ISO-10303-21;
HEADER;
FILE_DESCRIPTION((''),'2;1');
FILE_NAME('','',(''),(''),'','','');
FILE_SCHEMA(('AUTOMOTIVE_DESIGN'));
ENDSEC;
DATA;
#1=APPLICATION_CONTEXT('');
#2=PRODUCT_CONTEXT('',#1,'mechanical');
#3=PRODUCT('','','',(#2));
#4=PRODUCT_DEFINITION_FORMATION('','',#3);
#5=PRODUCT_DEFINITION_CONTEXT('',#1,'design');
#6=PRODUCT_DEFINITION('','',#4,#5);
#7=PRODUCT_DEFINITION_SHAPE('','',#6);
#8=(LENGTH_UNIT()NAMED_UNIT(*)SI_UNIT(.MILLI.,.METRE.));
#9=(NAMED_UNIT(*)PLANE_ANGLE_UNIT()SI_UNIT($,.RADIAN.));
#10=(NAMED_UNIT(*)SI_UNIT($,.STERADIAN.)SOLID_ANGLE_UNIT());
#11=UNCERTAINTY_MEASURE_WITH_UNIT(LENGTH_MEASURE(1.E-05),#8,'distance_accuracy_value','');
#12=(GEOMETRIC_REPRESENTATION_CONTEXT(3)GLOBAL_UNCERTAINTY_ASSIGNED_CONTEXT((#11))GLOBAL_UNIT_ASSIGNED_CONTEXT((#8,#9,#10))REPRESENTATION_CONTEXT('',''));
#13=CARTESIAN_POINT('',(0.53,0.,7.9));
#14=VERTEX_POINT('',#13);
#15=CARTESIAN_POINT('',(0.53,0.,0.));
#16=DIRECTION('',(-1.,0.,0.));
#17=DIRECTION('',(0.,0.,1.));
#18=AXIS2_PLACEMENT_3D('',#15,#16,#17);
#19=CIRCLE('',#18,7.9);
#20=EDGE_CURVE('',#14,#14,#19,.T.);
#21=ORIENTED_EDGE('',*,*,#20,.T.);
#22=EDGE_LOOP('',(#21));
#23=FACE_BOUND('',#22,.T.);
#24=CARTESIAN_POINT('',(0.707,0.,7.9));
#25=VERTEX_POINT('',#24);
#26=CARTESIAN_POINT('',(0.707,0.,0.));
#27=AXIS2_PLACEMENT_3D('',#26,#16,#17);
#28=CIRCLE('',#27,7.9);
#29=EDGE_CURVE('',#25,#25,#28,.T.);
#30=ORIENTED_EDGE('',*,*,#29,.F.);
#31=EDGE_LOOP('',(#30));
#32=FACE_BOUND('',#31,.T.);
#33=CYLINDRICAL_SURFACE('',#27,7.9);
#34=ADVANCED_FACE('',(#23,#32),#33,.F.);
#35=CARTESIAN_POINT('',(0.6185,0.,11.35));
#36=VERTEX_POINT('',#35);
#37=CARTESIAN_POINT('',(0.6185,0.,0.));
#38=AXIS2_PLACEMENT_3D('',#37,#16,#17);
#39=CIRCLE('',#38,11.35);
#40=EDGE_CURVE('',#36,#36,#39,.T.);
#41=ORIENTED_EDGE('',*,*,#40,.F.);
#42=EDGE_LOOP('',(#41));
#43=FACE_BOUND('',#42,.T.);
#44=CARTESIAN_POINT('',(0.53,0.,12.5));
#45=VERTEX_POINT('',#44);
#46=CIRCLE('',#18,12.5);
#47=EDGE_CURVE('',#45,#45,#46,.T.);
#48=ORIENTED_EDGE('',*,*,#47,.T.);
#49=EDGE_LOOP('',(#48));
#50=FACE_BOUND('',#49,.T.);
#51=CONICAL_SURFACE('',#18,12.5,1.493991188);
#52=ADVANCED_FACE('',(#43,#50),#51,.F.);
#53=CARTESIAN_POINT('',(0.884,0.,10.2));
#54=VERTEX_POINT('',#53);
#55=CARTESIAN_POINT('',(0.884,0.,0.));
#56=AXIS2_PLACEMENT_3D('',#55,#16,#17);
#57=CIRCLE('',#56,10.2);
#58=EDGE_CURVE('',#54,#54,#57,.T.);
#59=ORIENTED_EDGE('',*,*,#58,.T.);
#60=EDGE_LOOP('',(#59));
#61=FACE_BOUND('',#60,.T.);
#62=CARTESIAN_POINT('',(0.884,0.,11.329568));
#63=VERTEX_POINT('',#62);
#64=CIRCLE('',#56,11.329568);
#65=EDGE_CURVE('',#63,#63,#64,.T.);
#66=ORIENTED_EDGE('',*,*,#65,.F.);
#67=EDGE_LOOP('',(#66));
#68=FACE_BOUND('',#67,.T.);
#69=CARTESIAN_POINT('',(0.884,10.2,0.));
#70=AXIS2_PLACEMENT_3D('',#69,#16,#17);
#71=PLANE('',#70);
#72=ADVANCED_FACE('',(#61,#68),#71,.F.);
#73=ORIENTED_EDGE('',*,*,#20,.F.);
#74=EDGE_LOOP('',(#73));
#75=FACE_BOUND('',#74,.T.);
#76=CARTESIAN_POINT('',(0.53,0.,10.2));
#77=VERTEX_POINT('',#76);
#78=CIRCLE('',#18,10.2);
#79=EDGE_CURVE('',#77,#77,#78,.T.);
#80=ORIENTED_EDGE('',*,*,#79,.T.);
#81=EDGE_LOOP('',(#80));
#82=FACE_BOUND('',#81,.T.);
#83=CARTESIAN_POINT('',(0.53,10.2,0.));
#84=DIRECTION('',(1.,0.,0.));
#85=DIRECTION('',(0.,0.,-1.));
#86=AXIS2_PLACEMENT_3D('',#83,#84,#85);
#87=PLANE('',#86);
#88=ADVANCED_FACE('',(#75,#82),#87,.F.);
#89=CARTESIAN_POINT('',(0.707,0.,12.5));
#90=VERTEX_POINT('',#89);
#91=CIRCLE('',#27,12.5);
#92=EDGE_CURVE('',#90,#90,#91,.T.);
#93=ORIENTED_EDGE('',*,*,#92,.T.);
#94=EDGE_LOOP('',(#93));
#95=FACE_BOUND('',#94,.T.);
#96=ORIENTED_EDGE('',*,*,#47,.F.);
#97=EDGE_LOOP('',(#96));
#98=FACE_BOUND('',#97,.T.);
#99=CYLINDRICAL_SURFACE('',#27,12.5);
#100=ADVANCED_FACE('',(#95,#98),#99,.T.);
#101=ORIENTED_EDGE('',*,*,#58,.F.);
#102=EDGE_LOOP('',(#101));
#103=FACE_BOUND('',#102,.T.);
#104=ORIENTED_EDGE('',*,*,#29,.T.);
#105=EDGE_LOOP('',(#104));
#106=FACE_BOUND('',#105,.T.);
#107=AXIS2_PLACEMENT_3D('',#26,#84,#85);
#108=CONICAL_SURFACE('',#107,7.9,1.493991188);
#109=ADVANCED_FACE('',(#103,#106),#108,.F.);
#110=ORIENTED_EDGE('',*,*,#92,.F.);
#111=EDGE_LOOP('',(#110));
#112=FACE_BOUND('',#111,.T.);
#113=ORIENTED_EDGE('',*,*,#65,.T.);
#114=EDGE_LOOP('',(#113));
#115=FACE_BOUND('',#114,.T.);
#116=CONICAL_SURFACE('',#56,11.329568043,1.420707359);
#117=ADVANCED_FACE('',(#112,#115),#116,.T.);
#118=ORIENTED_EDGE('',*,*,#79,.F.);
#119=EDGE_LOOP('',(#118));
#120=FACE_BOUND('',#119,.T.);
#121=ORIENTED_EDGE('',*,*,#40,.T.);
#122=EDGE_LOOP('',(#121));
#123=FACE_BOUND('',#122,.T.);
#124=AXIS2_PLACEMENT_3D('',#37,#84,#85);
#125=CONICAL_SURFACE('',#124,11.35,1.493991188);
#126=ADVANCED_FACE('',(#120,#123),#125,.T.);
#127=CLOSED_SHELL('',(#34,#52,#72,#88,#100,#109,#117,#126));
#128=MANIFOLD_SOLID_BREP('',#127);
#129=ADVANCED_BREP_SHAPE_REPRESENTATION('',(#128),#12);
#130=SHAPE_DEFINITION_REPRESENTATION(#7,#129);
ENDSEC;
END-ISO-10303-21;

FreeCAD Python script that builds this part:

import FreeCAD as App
import Part
import Sketcher

doc = App.newDocument("Part")
params = doc.addObject("Spreadsheet::Sheet", "Params")
for row, (alias, value) in enumerate([
    ("sketch1_height", "2.3 mm"),
    ("revolution_angle", "360 deg"),
], start=1):
    params.set(f"A{row}", alias)
    params.set(f"B{row}", "=" + value)
    params.setAlias(f"B{row}", alias)

body = doc.addObject("PartDesign::Body", "Body")

# Sketch on XY plane
sketch1 = body.newObject("Sketcher::SketchObject", "Sketch")
sketch1.AttachmentSupport = (doc.getObject("XY_Plane"), [""])
sketch1.MapMode = "FlatFace"
sketch1.addGeometry(Part.LineSegment(App.Vector(0.53, 7.9, 0), App.Vector(0.71, 7.9, 0)), False)
sketch1.addGeometry(Part.LineSegment(App.Vector(0.71, 7.9, 0), App.Vector(0.88, 10.2, 0)), False)
sketch1.addGeometry(Part.LineSegment(App.Vector(0.88, 10.2, 0), App.Vector(0.88, 11.33, 0)), False)
sketch1.addGeometry(Part.LineSegment(App.Vector(0.88, 11.33, 0), App.Vector(0.71, 12.5, 0)), False)
sketch1.addGeometry(Part.LineSegment(App.Vector(0.71, 12.5, 0), App.Vector(0.53, 12.5, 0)), False)
sketch1.addGeometry(Part.LineSegment(App.Vector(0.53, 12.5, 0), App.Vector(0.62, 11.35, 0)), False)
sketch1.addGeometry(Part.LineSegment(App.Vector(0.62, 11.35, 0), App.Vector(0.53, 10.2, 0)), False)
sketch1.addGeometry(Part.LineSegment(App.Vector(0.53, 10.2, 0), App.Vector(0.53, 7.9, 0)), False)
sketch1.addConstraint(Sketcher.Constraint("Coincident", 0, 2, 1, 1))
sketch1.addConstraint(Sketcher.Constraint("Coincident", 1, 2, 2, 1))
sketch1.addConstraint(Sketcher.Constraint("Coincident", 2, 2, 3, 1))
sketch1.addConstraint(Sketcher.Constraint("Coincident", 3, 2, 4, 1))
sketch1.addConstraint(Sketcher.Constraint("Coincident", 4, 2, 5, 1))
sketch1.addConstraint(Sketcher.Constraint("Coincident", 5, 2, 6, 1))
sketch1.addConstraint(Sketcher.Constraint("Coincident", 6, 2, 7, 1))
sketch1.addConstraint(Sketcher.Constraint("Coincident", 7, 2, 0, 1))
sketch1.addConstraint(Sketcher.Constraint("Horizontal", 0))
sketch1.addConstraint(Sketcher.Constraint("Vertical", 2))
sketch1.addConstraint(Sketcher.Constraint("Horizontal", 4))
sketch1.addConstraint(Sketcher.Constraint("Vertical", 7))
sketch1.addConstraint(Sketcher.Constraint("Parallel", 1, 6))
sketch1.addConstraint(Sketcher.Constraint("Horizontal", 1, 2, 6, 2))
sketch1.addConstraint(Sketcher.Constraint("Vertical", 0, 2, 3, 2))
sketch1.addConstraint(Sketcher.Constraint("Vertical", 4, 2, 6, 2))
sketch1.addConstraint(Sketcher.Constraint("Equal", 5, 6))
sketch1.addConstraint(Sketcher.Constraint("DistanceY", 7, 2, 7, 1, 2.3))
sketch1.addConstraint(Sketcher.Constraint("DistanceY", -1, 1, 0, 2, 7.9))
sketch1.addConstraint(Sketcher.Constraint("DistanceY", -1, 1, 3, 2, 12.5))
sketch1.addConstraint(Sketcher.Constraint("DistanceX", 0, 1, 0, 2, 0.177))
sketch1.addConstraint(Sketcher.Constraint("DistanceX", -1, 1, 4, 2, 0.53))
sketch1.addConstraint(Sketcher.Constraint("DistanceX", -1, 1, 1, 2, 0.884))
sketch1.addConstraint(Sketcher.Constraint("DistanceY", 2, 1, 2, 2, 1.129568))
sketch1.setExpression("Constraints[17]", "Params.sketch1_height")
revolution = body.newObject("PartDesign::Revolution", "Revolution")
revolution.Profile = sketch1
revolution.ReferenceAxis = (sketch1, ["H_Axis"])
revolution.setExpression("Angle", "Params.revolution_angle")

doc.recompute()
